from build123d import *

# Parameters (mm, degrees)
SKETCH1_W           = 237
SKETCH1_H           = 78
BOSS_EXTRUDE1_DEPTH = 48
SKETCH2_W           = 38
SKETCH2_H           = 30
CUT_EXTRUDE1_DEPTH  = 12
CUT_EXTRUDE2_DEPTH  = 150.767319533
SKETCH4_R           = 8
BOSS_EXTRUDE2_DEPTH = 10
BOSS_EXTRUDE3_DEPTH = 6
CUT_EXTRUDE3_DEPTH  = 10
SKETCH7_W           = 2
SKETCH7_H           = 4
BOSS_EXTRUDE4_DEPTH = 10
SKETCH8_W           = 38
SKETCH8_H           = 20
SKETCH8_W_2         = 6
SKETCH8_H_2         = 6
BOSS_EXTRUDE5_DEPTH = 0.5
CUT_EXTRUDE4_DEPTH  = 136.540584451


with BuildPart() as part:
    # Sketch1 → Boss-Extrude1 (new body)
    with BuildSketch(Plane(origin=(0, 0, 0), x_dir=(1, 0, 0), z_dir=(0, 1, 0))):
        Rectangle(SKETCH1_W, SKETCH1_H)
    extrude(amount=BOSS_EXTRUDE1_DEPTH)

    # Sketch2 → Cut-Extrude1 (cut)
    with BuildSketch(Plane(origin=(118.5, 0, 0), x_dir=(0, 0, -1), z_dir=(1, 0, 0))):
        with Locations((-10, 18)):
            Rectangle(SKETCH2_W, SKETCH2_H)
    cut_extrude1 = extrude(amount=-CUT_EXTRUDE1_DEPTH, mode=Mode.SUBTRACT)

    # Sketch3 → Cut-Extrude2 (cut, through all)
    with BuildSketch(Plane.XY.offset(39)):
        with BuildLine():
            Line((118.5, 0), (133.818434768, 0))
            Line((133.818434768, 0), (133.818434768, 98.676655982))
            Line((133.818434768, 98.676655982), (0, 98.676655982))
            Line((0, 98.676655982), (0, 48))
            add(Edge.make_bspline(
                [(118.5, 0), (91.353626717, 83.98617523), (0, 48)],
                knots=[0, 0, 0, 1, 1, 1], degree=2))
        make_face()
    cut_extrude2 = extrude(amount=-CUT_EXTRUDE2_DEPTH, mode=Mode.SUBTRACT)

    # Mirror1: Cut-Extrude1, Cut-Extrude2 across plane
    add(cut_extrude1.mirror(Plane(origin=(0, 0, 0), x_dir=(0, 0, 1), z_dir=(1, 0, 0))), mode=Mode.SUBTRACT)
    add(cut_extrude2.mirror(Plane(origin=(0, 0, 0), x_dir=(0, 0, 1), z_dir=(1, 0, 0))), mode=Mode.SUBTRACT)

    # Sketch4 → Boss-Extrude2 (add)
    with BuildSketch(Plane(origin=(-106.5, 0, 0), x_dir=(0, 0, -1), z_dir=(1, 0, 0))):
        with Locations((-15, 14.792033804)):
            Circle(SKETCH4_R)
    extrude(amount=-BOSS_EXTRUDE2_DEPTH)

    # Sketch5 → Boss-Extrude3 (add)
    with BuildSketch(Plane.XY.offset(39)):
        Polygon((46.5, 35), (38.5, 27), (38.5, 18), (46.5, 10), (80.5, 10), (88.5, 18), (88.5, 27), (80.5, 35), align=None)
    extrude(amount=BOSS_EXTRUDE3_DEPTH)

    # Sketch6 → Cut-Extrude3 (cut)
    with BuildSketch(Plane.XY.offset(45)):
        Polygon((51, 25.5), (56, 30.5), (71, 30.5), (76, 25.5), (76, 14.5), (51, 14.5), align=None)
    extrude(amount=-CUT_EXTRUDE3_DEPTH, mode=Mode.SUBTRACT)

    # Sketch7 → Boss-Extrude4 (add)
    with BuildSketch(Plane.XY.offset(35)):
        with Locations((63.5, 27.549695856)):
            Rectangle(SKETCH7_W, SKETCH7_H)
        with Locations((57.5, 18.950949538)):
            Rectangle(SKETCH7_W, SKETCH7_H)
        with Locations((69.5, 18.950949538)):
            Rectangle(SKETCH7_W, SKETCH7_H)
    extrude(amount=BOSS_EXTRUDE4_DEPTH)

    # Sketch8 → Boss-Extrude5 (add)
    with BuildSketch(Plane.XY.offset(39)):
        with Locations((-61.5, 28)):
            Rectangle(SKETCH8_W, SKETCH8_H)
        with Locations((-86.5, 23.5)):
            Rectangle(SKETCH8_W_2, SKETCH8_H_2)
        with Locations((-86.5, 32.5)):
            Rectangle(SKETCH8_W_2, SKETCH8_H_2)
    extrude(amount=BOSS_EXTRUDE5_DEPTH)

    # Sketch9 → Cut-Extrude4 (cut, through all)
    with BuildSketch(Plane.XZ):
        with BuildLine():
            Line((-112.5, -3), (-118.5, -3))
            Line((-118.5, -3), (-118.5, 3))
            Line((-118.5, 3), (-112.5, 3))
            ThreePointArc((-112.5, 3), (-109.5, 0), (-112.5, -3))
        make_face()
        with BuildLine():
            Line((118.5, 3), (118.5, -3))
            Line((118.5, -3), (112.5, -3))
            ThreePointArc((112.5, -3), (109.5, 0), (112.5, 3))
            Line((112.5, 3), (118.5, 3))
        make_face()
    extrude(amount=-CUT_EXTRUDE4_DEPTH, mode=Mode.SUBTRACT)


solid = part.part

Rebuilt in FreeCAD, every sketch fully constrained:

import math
import FreeCAD as App
import Part
import Sketcher

V = App.Vector

doc = App.newDocument("Part")
body = doc.addObject("PartDesign::Body", "Body")

# Sketch on XZ plane
sketch1 = body.newObject("Sketcher::SketchObject", "Sketch")
sketch1.AttachmentSupport = (doc.getObject("XZ_Plane"), [""])
sketch1.MapMode = "FlatFace"
sketch1.addGeometry(Part.LineSegment(V(-118, -39, 0), V(-118, 39, 0)), False)
sketch1.addGeometry(Part.LineSegment(V(-118, 39, 0), V(118, 39, 0)), False)
sketch1.addGeometry(Part.LineSegment(V(118, 39, 0), V(118, -39, 0)), False)
sketch1.addGeometry(Part.LineSegment(V(118, -39, 0), V(-118, -39, 0)), False)
sketch1.addConstraint(Sketcher.Constraint("Coincident", 0, 2, 1, 1))
sketch1.addConstraint(Sketcher.Constraint("Coincident", 1, 2, 2, 1))
sketch1.addConstraint(Sketcher.Constraint("Coincident", 2, 2, 3, 1))
sketch1.addConstraint(Sketcher.Constraint("Coincident", 3, 2, 0, 1))
sketch1.addConstraint(Sketcher.Constraint("Vertical", 0))
sketch1.addConstraint(Sketcher.Constraint("Horizontal", 1))
sketch1.addConstraint(Sketcher.Constraint("Vertical", 2))
sketch1.addConstraint(Sketcher.Constraint("Horizontal", 3))
sketch1.addConstraint(Sketcher.Constraint("Symmetric", 0, 2, 2, 2, -1, 1))
sketch1.addConstraint(Sketcher.Constraint("DistanceX", 1, 1, 1, 2, 237.0))
sketch1.addConstraint(Sketcher.Constraint("DistanceY", 0, 1, 0, 2, 78.0))
pad1 = body.newObject("PartDesign::Pad", "Pad")
pad1.Profile = sketch1
pad1.Length = 48
pad1.Reversed = True

# Sketch on YZ plane
sketch2 = body.newObject("Sketcher::SketchObject", "Sketch001")
sketch2.AttachmentSupport = (doc.getObject("YZ_Plane"), [""])
sketch2.MapMode = "FlatFace"
sketch2.AttachmentOffset = App.Placement(V(0, 0, 118.5), App.Rotation())
sketch2.addGeometry(Part.LineSegment(V(33, 29, 0), V(3, 29, 0)), False)
sketch2.addGeometry(Part.LineSegment(V(3, 29, 0), V(3, -9, 0)), False)
sketch2.addGeometry(Part.LineSegment(V(3, -9, 0), V(33, -9, 0)), False)
sketch2.addGeometry(Part.LineSegment(V(33, -9, 0), V(33, 29, 0)), False)
sketch2.addConstraint(Sketcher.Constraint("Coincident", 0, 2, 1, 1))
sketch2.addConstraint(Sketcher.Constraint("Coincident", 1, 2, 2, 1))
sketch2.addConstraint(Sketcher.Constraint("Coincident", 2, 2, 3, 1))
sketch2.addConstraint(Sketcher.Constraint("Coincident", 3, 2, 0, 1))
sketch2.addConstraint(Sketcher.Constraint("Horizontal", 0))
sketch2.addConstraint(Sketcher.Constraint("Vertical", 1))
sketch2.addConstraint(Sketcher.Constraint("Horizontal", 2))
sketch2.addConstraint(Sketcher.Constraint("Vertical", 3))
sketch2.addConstraint(Sketcher.Constraint("DistanceX", 0, 2, 0, 1, 30.0))
sketch2.addConstraint(Sketcher.Constraint("DistanceY", 1, 2, 1, 1, 38.0))
sketch2.addConstraint(Sketcher.Constraint("DistanceX", -1, 1, 0, 2, 3.0))
sketch2.addConstraint(Sketcher.Constraint("DistanceY", -1, 1, 0, 2, 29.0))
pocket1 = body.newObject("PartDesign::Pocket", "Pocket")
pocket1.Profile = sketch2
pocket1.Length = 12

# Sketch on XY plane
sketch3 = body.newObject("Sketcher::SketchObject", "Sketch002")
sketch3.AttachmentSupport = (doc.getObject("XY_Plane"), [""])
sketch3.MapMode = "FlatFace"
sketch3.AttachmentOffset = App.Placement(V(0, 0, 39), App.Rotation())
sketch3.addGeometry(Part.LineSegment(V(118.5, 0, 0), V(133.818435, 0, 0)), False)
sketch3.addGeometry(Part.LineSegment(V(133.818435, 0, 0), V(133.818435, 98.676656, 0)), False)
sketch3.addGeometry(Part.LineSegment(V(133.818435, 98.676656, 0), V(0, 98.676656, 0)), False)
sketch3.addGeometry(Part.LineSegment(V(0, 98.676656, 0), V(0, 48, 0)), False)
sketch3.addGeometry(Part.BSplineCurve([V(118.5, 0, 0), V(91.353627, 83.986175, 0), V(0, 48, 0)], [3, 3], [0, 1], False, 2, [1, 1, 1], False), False)
sketch3.addConstraint(Sketcher.Constraint("Block", 4))
sketch3.addConstraint(Sketcher.Constraint("Coincident", 0, 2, 1, 1))
sketch3.addConstraint(Sketcher.Constraint("Coincident", 1, 2, 2, 1))
sketch3.addConstraint(Sketcher.Constraint("Coincident", 2, 2, 3, 1))
sketch3.addConstraint(Sketcher.Constraint("Coincident", 3, 2, 4, 2))
sketch3.addConstraint(Sketcher.Constraint("Coincident", 4, 1, 0, 1))
sketch3.addConstraint(Sketcher.Constraint("Horizontal", 0))
sketch3.addConstraint(Sketcher.Constraint("Vertical", 1))
sketch3.addConstraint(Sketcher.Constraint("Horizontal", 2))
sketch3.addConstraint(Sketcher.Constraint("Vertical", 3))
sketch3.addConstraint(Sketcher.Constraint("DistanceX", 0, 1, 0, 2, 15.318435))
sketch3.addConstraint(Sketcher.Constraint("DistanceY", 1, 1, 1, 2, 98.676656))
pocket2 = body.newObject("PartDesign::Pocket", "Pocket001")
pocket2.Profile = sketch3
pocket2.Type = "ThroughAll"
doc.recompute()

mirrored = body.newObject("PartDesign::Mirrored", "Mirrored")
mirrored.Originals = [pocket1, pocket2]
mirrored.MirrorPlane = (doc.getObject("YZ_Plane"), [""])
body.Tip = mirrored

# Sketch on YZ plane
sketch4 = body.newObject("Sketcher::SketchObject", "Sketch003")
sketch4.AttachmentSupport = (doc.getObject("YZ_Plane"), [""])
sketch4.MapMode = "FlatFace"
sketch4.AttachmentOffset = App.Placement(V(0, 0, -106.5), App.Rotation())
sketch4.addGeometry(Part.Circle(V(15, 15, 0), V(0, 0, 1), 8), False)
sketch4.addConstraint(Sketcher.Constraint("Diameter", 0, 16.0))
sketch4.addConstraint(Sketcher.Constraint("DistanceY", -1, 1, 0, 3, 15.0))
sketch4.addConstraint(Sketcher.Constraint("DistanceX", -1, 1, 0, 3, 14.792034))
pad2 = body.newObject("PartDesign::Pad", "Pad001")
pad2.Profile = sketch4
pad2.Length = 10
pad2.Reversed = True

# Sketch on XY plane
sketch5 = body.newObject("Sketcher::SketchObject", "Sketch004")
sketch5.AttachmentSupport = (doc.getObject("XY_Plane"), [""])
sketch5.MapMode = "FlatFace"
sketch5.AttachmentOffset = App.Placement(V(0, 0, 39), App.Rotation())
sketch5.addGeometry(Part.LineSegment(V(46, 35, 0), V(38, 27, 0)), False)
sketch5.addGeometry(Part.LineSegment(V(38, 27, 0), V(38, 18, 0)), False)
sketch5.addGeometry(Part.LineSegment(V(38, 18, 0), V(46, 10, 0)), False)
sketch5.addGeometry(Part.LineSegment(V(46, 10, 0), V(80, 10, 0)), False)
sketch5.addGeometry(Part.LineSegment(V(80, 10, 0), V(88, 18, 0)), False)
sketch5.addGeometry(Part.LineSegment(V(88, 18, 0), V(88, 27, 0)), False)
sketch5.addGeometry(Part.LineSegment(V(88, 27, 0), V(80, 35, 0)), False)
sketch5.addGeometry(Part.LineSegment(V(80, 35, 0), V(46, 35, 0)), False)
sketch5.addConstraint(Sketcher.Constraint("Coincident", 0, 2, 1, 1))
sketch5.addConstraint(Sketcher.Constraint("Coincident", 1, 2, 2, 1))
sketch5.addConstraint(Sketcher.Constraint("Coincident", 2, 2, 3, 1))
sketch5.addConstraint(Sketcher.Constraint("Coincident", 3, 2, 4, 1))
sketch5.addConstraint(Sketcher.Constraint("Coincident", 4, 2, 5, 1))
sketch5.addConstraint(Sketcher.Constraint("Coincident", 5, 2, 6, 1))
sketch5.addConstraint(Sketcher.Constraint("Coincident", 6, 2, 7, 1))
sketch5.addConstraint(Sketcher.Constraint("Coincident", 7, 2, 0, 1))
sketch5.addConstraint(Sketcher.Constraint("Vertical", 1))
sketch5.addConstraint(Sketcher.Constraint("Horizontal", 3))
sketch5.addConstraint(Sketcher.Constraint("Vertical", 5))
sketch5.addConstraint(Sketcher.Constraint("Horizontal", 7))
sketch5.addConstraint(Sketcher.Constraint("Perpendicular", 0, 2))
sketch5.addConstraint(Sketcher.Constraint("Perpendicular", 2, 4))
sketch5.addConstraint(Sketcher.Constraint("Perpendicular", 4, 6))
sketch5.addConstraint(Sketcher.Constraint("Horizontal", 1, 2, 4, 2))
sketch5.addConstraint(Sketcher.Constraint("Horizontal", 0, 2, 5, 2))
sketch5.addConstraint(Sketcher.Constraint("Vertical", 3, 2, 6, 2))
sketch5.addConstraint(Sketcher.Constraint("Vertical", 2, 2, 7, 2))
sketch5.addConstraint(Sketcher.Constraint("DistanceX", 3, 1, 3, 2, 34.0))
sketch5.addConstraint(Sketcher.Constraint("DistanceY", 1, 2, 1, 1, 9.0))
sketch5.addConstraint(Sketcher.Constraint("DistanceY", -1, 1, 0, 2, 27.0))
sketch5.addConstraint(Sketcher.Constraint("DistanceY", -1, 1, 2, 2, 10.0))
sketch5.addConstraint(Sketcher.Constraint("DistanceX", -1, 1, 0, 2, 38.5))
pad3 = body.newObject("PartDesign::Pad", "Pad002")
pad3.Profile = sketch5
pad3.Length = 6

# Sketch on XY plane
sketch6 = body.newObject("Sketcher::SketchObject", "Sketch005")
sketch6.AttachmentSupport = (doc.getObject("XY_Plane"), [""])
sketch6.MapMode = "FlatFace"
sketch6.AttachmentOffset = App.Placement(V(0, 0, 45), App.Rotation())
sketch6.addGeometry(Part.LineSegment(V(56, 30, 0), V(51, 26, 0)), False)
sketch6.addGeometry(Part.LineSegment(V(51, 26, 0), V(51, 14, 0)), False)
sketch6.addGeometry(Part.LineSegment(V(51, 14, 0), V(76, 14, 0)), False)
sketch6.addGeometry(Part.LineSegment(V(76, 14, 0), V(76, 26, 0)), False)
sketch6.addGeometry(Part.LineSegment(V(76, 26, 0), V(71, 30, 0)), False)
sketch6.addGeometry(Part.LineSegment(V(71, 30, 0), V(56, 30, 0)), False)
sketch6.addConstraint(Sketcher.Constraint("Coincident", 0, 2, 1, 1))
sketch6.addConstraint(Sketcher.Constraint("Coincident", 1, 2, 2, 1))
sketch6.addConstraint(Sketcher.Constraint("Coincident", 2, 2, 3, 1))
sketch6.addConstraint(Sketcher.Constraint("Coincident", 3, 2, 4, 1))
sketch6.addConstraint(Sketcher.Constraint("Coincident", 4, 2, 5, 1))
sketch6.addConstraint(Sketcher.Constraint("Coincident", 5, 2, 0, 1))
sketch6.addConstraint(Sketcher.Constraint("Vertical", 1))
sketch6.addConstraint(Sketcher.Constraint("Horizontal", 2))
sketch6.addConstraint(Sketcher.Constraint("Vertical", 3))
sketch6.addConstraint(Sketcher.Constraint("Horizontal", 5))
sketch6.addConstraint(Sketcher.Constraint("Perpendicular", 0, 4))
sketch6.addConstraint(Sketcher.Constraint("Horizontal", 0, 2, 3, 2))
sketch6.addConstraint(Sketcher.Constraint("Equal", 0, 4))
sketch6.addConstraint(Sketcher.Constraint("DistanceX", 2, 1, 2, 2, 25.0))
sketch6.addConstraint(Sketcher.Constraint("DistanceX", 5, 2, 5, 1, 15.0))
sketch6.addConstraint(Sketcher.Constraint("DistanceY", 1, 2, 1, 1, 11.0))
sketch6.addConstraint(Sketcher.Constraint("DistanceX", -1, 1, 0, 2, 51.0))
sketch6.addConstraint(Sketcher.Constraint("DistanceY", -1, 1, 0, 2, 25.5))
pocket3 = body.newObject("PartDesign::Pocket", "Pocket002")
pocket3.Profile = sketch6
pocket3.Length = 10

# Sketch on XY plane
sketch7 = body.newObject("Sketcher::SketchObject", "Sketch006")
sketch7.AttachmentSupport = (doc.getObject("XY_Plane"), [""])
sketch7.MapMode = "FlatFace"
sketch7.AttachmentOffset = App.Placement(V(0, 0, 35), App.Rotation())
sketch7.addGeometry(Part.LineSegment(V(62.5, 29.5, 0), V(62.5, 25.5, 0)), False)
sketch7.addGeometry(Part.LineSegment(V(62.5, 25.5, 0), V(64.5, 25.5, 0)), False)
sketch7.addGeometry(Part.LineSegment(V(64.5, 25.5, 0), V(64.5, 29.5, 0)), False)
sketch7.addGeometry(Part.LineSegment(V(64.5, 29.5, 0), V(62.5, 29.5, 0)), False)
sketch7.addGeometry(Part.LineSegment(V(56.5, 21, 0), V(56.5, 17, 0)), False)
sketch7.addGeometry(Part.LineSegment(V(56.5, 17, 0), V(58.5, 17, 0)), False)
sketch7.addGeometry(Part.LineSegment(V(58.5, 17, 0), V(58.5, 21, 0)), False)
sketch7.addGeometry(Part.LineSegment(V(58.5, 21, 0), V(56.5, 21, 0)), False)
sketch7.addGeometry(Part.LineSegment(V(68.5, 21, 0), V(68.5, 17, 0)), False)
sketch7.addGeometry(Part.LineSegment(V(68.5, 17, 0), V(70.5, 17, 0)), False)
sketch7.addGeometry(Part.LineSegment(V(70.5, 17, 0), V(70.5, 21, 0)), False)
sketch7.addGeometry(Part.LineSegment(V(70.5, 21, 0), V(68.5, 21, 0)), False)
sketch7.addConstraint(Sketcher.Constraint("Coincident", 0, 2, 1, 1))
sketch7.addConstraint(Sketcher.Constraint("Coincident", 1, 2, 2, 1))
sketch7.addConstraint(Sketcher.Constraint("Coincident", 2, 2, 3, 1))
sketch7.addConstraint(Sketcher.Constraint("Coincident", 3, 2, 0, 1))
sketch7.addConstraint(Sketcher.Constraint("Coincident", 4, 2, 5, 1))
sketch7.addConstraint(Sketcher.Constraint("Coincident", 5, 2, 6, 1))
sketch7.addConstraint(Sketcher.Constraint("Coincident", 6, 2, 7, 1))
sketch7.addConstraint(Sketcher.Constraint("Coincident", 7, 2, 4, 1))
sketch7.addConstraint(Sketcher.Constraint("Coincident", 8, 2, 9, 1))
sketch7.addConstraint(Sketcher.Constraint("Coincident", 9, 2, 10, 1))
sketch7.addConstraint(Sketcher.Constraint("Coincident", 10, 2, 11, 1))
sketch7.addConstraint(Sketcher.Constraint("Coincident", 11, 2, 8, 1))
sketch7.addConstraint(Sketcher.Constraint("Vertical", 0))
sketch7.addConstraint(Sketcher.Constraint("Horizontal", 1))
sketch7.addConstraint(Sketcher.Constraint("Vertical", 2))
sketch7.addConstraint(Sketcher.Constraint("Horizontal", 3))
sketch7.addConstraint(Sketcher.Constraint("Vertical", 4))
sketch7.addConstraint(Sketcher.Constraint("Horizontal", 5))
sketch7.addConstraint(Sketcher.Constraint("Vertical", 6))
sketch7.addConstraint(Sketcher.Constraint("Horizontal", 7))
sketch7.addConstraint(Sketcher.Constraint("Vertical", 8))
sketch7.addConstraint(Sketcher.Constraint("Horizontal", 9))
sketch7.addConstraint(Sketcher.Constraint("Vertical", 10))
sketch7.addConstraint(Sketcher.Constraint("Horizontal", 11))
sketch7.addConstraint(Sketcher.Constraint("Horizontal", 5, 2, 8, 2))
sketch7.addConstraint(Sketcher.Constraint("Horizontal", 7, 2, 10, 2))
sketch7.addConstraint(Sketcher.Constraint("Equal", 3, 5))
sketch7.addConstraint(Sketcher.Constraint("Equal", 7, 9))
sketch7.addConstraint(Sketcher.Constraint("Equal", 2, 4))
sketch7.addConstraint(Sketcher.Constraint("DistanceX", 1, 1, 1, 2, 2.0))
sketch7.addConstraint(Sketcher.Constraint("DistanceY", 0, 2, 0, 1, 4.0))
sketch7.addConstraint(Sketcher.Constraint("DistanceX", 4, 2, 0, 2, 6.0))
sketch7.addConstraint(Sketcher.Constraint("DistanceX", 1, 2, 8, 2, 4.0))
sketch7.addConstraint(Sketcher.Constraint("DistanceX", -1, 1, 0, 2, 62.5))
sketch7.addConstraint(Sketcher.Constraint("DistanceY", -1, 1, 4, 2, 16.95095))
sketch7.addConstraint(Sketcher.Constraint("DistanceY", -1, 1, 0, 2, 25.549696))
pad4 = body.newObject("PartDesign::Pad", "Pad003")
pad4.Profile = sketch7
pad4.Length = 10

# Sketch on XY plane
sketch8 = body.newObject("Sketcher::SketchObject", "Sketch007")
sketch8.AttachmentSupport = (doc.getObject("XY_Plane"), [""])
sketch8.MapMode = "FlatFace"
sketch8.AttachmentOffset = App.Placement(V(0, 0, 39), App.Rotation())
sketch8.addGeometry(Part.LineSegment(V(-80, 38, 0), V(-80, 18, 0)), False)
sketch8.addGeometry(Part.LineSegment(V(-80, 18, 0), V(-42, 18, 0)), False)
sketch8.addGeometry(Part.LineSegment(V(-42, 18, 0), V(-42, 38, 0)), False)
sketch8.addGeometry(Part.LineSegment(V(-42, 38, 0), V(-80, 38, 0)), False)
sketch8.addGeometry(Part.LineSegment(V(-90, 26, 0), V(-90, 20, 0)), False)
sketch8.addGeometry(Part.LineSegment(V(-90, 20, 0), V(-84, 20, 0)), False)
sketch8.addGeometry(Part.LineSegment(V(-84, 20, 0), V(-84, 26, 0)), False)
sketch8.addGeometry(Part.LineSegment(V(-84, 26, 0), V(-90, 26, 0)), False)
sketch8.addGeometry(Part.LineSegment(V(-90, 36, 0), V(-90, 30, 0)), False)
sketch8.addGeometry(Part.LineSegment(V(-90, 30, 0), V(-84, 30, 0)), False)
sketch8.addGeometry(Part.LineSegment(V(-84, 30, 0), V(-84, 36, 0)), False)
sketch8.addGeometry(Part.LineSegment(V(-84, 36, 0), V(-90, 36, 0)), False)
sketch8.addConstraint(Sketcher.Constraint("Coincident", 0, 2, 1, 1))
sketch8.addConstraint(Sketcher.Constraint("Coincident", 1, 2, 2, 1))
sketch8.addConstraint(Sketcher.Constraint("Coincident", 2, 2, 3, 1))
sketch8.addConstraint(Sketcher.Constraint("Coincident", 3, 2, 0, 1))
sketch8.addConstraint(Sketcher.Constraint("Coincident", 4, 2, 5, 1))
sketch8.addConstraint(Sketcher.Constraint("Coincident", 5, 2, 6, 1))
sketch8.addConstraint(Sketcher.Constraint("Coincident", 6, 2, 7, 1))
sketch8.addConstraint(Sketcher.Constraint("Coincident", 7, 2, 4, 1))
sketch8.addConstraint(Sketcher.Constraint("Coincident", 8, 2, 9, 1))
sketch8.addConstraint(Sketcher.Constraint("Coincident", 9, 2, 10, 1))
sketch8.addConstraint(Sketcher.Constraint("Coincident", 10, 2, 11, 1))
sketch8.addConstraint(Sketcher.Constraint("Coincident", 11, 2, 8, 1))
sketch8.addConstraint(Sketcher.Constraint("Vertical", 0))
sketch8.addConstraint(Sketcher.Constraint("Horizontal", 1))
sketch8.addConstraint(Sketcher.Constraint("Vertical", 2))
sketch8.addConstraint(Sketcher.Constraint("Horizontal", 3))
sketch8.addConstraint(Sketcher.Constraint("Vertical", 4))
sketch8.addConstraint(Sketcher.Constraint("Horizontal", 5))
sketch8.addConstraint(Sketcher.Constraint("Vertical", 6))
sketch8.addConstraint(Sketcher.Constraint("Horizontal", 7))
sketch8.addConstraint(Sketcher.Constraint("Vertical", 8))
sketch8.addConstraint(Sketcher.Constraint("Horizontal", 9))
sketch8.addConstraint(Sketcher.Constraint("Vertical", 10))
sketch8.addConstraint(Sketcher.Constraint("Horizontal", 11))
sketch8.addConstraint(Sketcher.Constraint("Vertical", 7, 2, 8, 2))
sketch8.addConstraint(Sketcher.Constraint("Vertical", 6, 2, 9, 2))
sketch8.addConstraint(Sketcher.Constraint("Equal", 11, 4))
sketch8.addConstraint(Sketcher.Constraint("Equal", 6, 8))
sketch8.addConstraint(Sketcher.Constraint("DistanceX", 1, 1, 1, 2, 38.0))
sketch8.addConstraint(Sketcher.Constraint("DistanceX", 5, 1, 5, 2, 6.0))
sketch8.addConstraint(Sketcher.Constraint("DistanceY", 0, 2, 0, 1, 20.0))
sketch8.addConstraint(Sketcher.Constraint("DistanceY", -1, 1, 0, 2, 18.0))
sketch8.addConstraint(Sketcher.Constraint("DistanceX", 4, 2, 0, 2, 9.0))
sketch8.addConstraint(Sketcher.Constraint("DistanceY", 7, 2, 8, 2, 3.0))
sketch8.addConstraint(Sketcher.Constraint("DistanceX", 0, 2, -1, 1, 80.5))
sketch8.addConstraint(Sketcher.Constraint("DistanceY", -1, 1, 4, 2, 20.5))
pad5 = body.newObject("PartDesign::Pad", "Pad004")
pad5.Profile = sketch8
pad5.Length = 0.5

# Sketch on XZ plane
sketch9 = body.newObject("Sketcher::SketchObject", "Sketch008")
sketch9.AttachmentSupport = (doc.getObject("XZ_Plane"), [""])
sketch9.MapMode = "FlatFace"
sketch9.addGeometry(Part.LineSegment(V(-118.5, -3, 0), V(-112.5, -3, 0)), False)
sketch9.addGeometry(Part.ArcOfCircle(Part.Circle(V(-112.5, 0, 0), V(0, 0, 1), 3), math.radians(-90), math.radians(90)), False)
sketch9.addGeometry(Part.LineSegment(V(-112.5, 3, 0), V(-118.5, 3, 0)), False)
sketch9.addGeometry(Part.LineSegment(V(-118.5, 3, 0), V(-118.5, -3, 0)), False)
sketch9.addGeometry(Part.LineSegment(V(118.5, -3, 0), V(118.5, 3, 0)), False)
sketch9.addGeometry(Part.LineSegment(V(118.5, 3, 0), V(112.5, 3, 0)), False)
sketch9.addGeometry(Part.ArcOfCircle(Part.Circle(V(112.5, 0, 0), V(0, 0, 1), 3), math.radians(90), math.radians(270)), False)
sketch9.addGeometry(Part.LineSegment(V(112.5, -3, 0), V(118.5, -3, 0)), False)
sketch9.addConstraint(Sketcher.Constraint("Tangent", 0, 2, 1, 1))
sketch9.addConstraint(Sketcher.Constraint("Tangent", 1, 2, 2, 1))
sketch9.addConstraint(Sketcher.Constraint("Coincident", 2, 2, 3, 1))
sketch9.addConstraint(Sketcher.Constraint("Coincident", 3, 2, 0, 1))
sketch9.addConstraint(Sketcher.Constraint("Coincident", 4, 2, 5, 1))
sketch9.addConstraint(Sketcher.Constraint("Tangent", 5, 2, 6, 1))
sketch9.addConstraint(Sketcher.Constraint("Tangent", 6, 2, 7, 1))
sketch9.addConstraint(Sketcher.Constraint("Coincident", 7, 2, 4, 1))
sketch9.addConstraint(Sketcher.Constraint("Horizontal", 0))
sketch9.addConstraint(Sketcher.Constraint("Horizontal", 2))
sketch9.addConstraint(Sketcher.Constraint("Vertical", 3))
sketch9.addConstraint(Sketcher.Constraint("Vertical", 4))
sketch9.addConstraint(Sketcher.Constraint("Horizontal", 5))
sketch9.addConstraint(Sketcher.Constraint("Horizontal", 7))
sketch9.addConstraint(Sketcher.Constraint("Equal", 1, 6))
sketch9.addConstraint(Sketcher.Constraint("Symmetric", 1, 3, 6, 3, -1, 1))
sketch9.addConstraint(Sketcher.Constraint("Symmetric", 2, 2, 4, 2, -2))
sketch9.addConstraint(Sketcher.Constraint("Equal", 7, 3))
sketch9.addConstraint(Sketcher.Constraint("Radius", 1, 3.0))
sketch9.addConstraint(Sketcher.Constraint("DistanceX", 1, 3, 6, 3, 225.0))
pocket4 = body.newObject("PartDesign::Pocket", "Pocket003")
pocket4.Profile = sketch9
pocket4.Type = "ThroughAll"

doc.recompute()
